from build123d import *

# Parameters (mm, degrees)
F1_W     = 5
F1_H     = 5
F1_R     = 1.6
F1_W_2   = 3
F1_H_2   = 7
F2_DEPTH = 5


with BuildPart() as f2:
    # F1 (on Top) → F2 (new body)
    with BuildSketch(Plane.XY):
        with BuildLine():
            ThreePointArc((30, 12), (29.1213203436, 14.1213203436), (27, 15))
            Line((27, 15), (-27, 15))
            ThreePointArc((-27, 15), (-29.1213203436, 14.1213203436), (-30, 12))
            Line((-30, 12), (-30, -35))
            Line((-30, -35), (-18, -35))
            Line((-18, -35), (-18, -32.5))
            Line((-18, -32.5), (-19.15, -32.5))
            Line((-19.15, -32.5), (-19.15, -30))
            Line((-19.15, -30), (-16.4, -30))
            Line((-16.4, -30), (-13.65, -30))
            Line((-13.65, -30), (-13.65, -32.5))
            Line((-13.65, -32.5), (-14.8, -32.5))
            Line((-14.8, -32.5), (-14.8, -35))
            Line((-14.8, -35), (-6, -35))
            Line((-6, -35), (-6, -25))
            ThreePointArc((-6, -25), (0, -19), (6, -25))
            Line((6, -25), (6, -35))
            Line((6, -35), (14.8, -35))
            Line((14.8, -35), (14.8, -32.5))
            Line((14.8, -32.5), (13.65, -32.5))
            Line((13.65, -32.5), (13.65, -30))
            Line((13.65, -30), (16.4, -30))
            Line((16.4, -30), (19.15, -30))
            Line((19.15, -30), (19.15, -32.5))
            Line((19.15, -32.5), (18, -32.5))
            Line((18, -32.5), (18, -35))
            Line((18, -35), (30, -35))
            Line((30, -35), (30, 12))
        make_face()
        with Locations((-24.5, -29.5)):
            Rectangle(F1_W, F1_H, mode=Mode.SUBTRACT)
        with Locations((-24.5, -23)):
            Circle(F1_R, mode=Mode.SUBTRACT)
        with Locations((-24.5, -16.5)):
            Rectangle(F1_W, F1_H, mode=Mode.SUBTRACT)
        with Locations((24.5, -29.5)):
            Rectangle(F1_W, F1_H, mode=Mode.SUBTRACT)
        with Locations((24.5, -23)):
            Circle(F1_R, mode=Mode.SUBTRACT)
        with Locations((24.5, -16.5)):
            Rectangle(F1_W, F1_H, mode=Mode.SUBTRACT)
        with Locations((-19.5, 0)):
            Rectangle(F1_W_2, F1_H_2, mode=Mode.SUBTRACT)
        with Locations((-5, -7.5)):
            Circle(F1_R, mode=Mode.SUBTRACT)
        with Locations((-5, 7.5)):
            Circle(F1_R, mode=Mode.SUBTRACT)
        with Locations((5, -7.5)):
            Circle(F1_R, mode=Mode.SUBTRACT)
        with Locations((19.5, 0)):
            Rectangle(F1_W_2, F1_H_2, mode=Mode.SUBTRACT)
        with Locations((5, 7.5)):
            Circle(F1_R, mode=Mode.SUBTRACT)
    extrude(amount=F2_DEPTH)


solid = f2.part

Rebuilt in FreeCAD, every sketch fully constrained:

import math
import FreeCAD as App
import Part
import Sketcher

V = App.Vector
Q = App.Units.Quantity

doc = App.newDocument("Part")
params = doc.addObject("Spreadsheet::Sheet", "Params")
for row, (alias, value) in enumerate([
    ("sketch1_radius", "3 mm"),
    ("sketch1_radius2", "6 mm"),
    ("sketch1_diameter", "3.2 mm"),
    ("sketch1_width", "54 mm"),
    ("sketch1_width2", "12 mm"),
    ("pad1_length", "5 mm"),
], start=1):
    params.set(f"A{row}", alias)
    params.set(f"B{row}", "=" + value)
    params.setAlias(f"B{row}", alias)

body = doc.addObject("PartDesign::Body", "Body")

# Sketch on XY plane
sketch1 = body.newObject("Sketcher::SketchObject", "Sketch")
sketch1.AttachmentSupport = (doc.getObject("XY_Plane"), [""])
sketch1.MapMode = "FlatFace"
sketch1.addGeometry(Part.ArcOfCircle(Part.Circle(V(27, 12, 0), V(0, 0, 1), 3), math.radians(0), math.radians(90)), False)
sketch1.addGeometry(Part.LineSegment(V(27, 15, 0), V(-27, 15, 0)), False)
sketch1.addGeometry(Part.ArcOfCircle(Part.Circle(V(-27, 12, 0), V(0, 0, 1), 3), math.radians(90), math.radians(180)), False)
sketch1.addGeometry(Part.LineSegment(V(-30, 12, 0), V(-30, -35, 0)), False)
sketch1.addGeometry(Part.LineSegment(V(-30, -35, 0), V(-18, -35, 0)), False)
sketch1.addGeometry(Part.LineSegment(V(-18, -35, 0), V(-18, -32.5, 0)), False)
sketch1.addGeometry(Part.LineSegment(V(-18, -32.5, 0), V(-19.1, -32.5, 0)), False)
sketch1.addGeometry(Part.LineSegment(V(-19.1, -32.5, 0), V(-19.1, -30, 0)), False)
sketch1.addGeometry(Part.LineSegment(V(-19.1, -30, 0), V(-13.7, -30, 0)), False)
sketch1.addGeometry(Part.LineSegment(V(-13.7, -30, 0), V(-13.7, -32.5, 0)), False)
sketch1.addGeometry(Part.LineSegment(V(-13.7, -32.5, 0), V(-14.8, -32.5, 0)), False)
sketch1.addGeometry(Part.LineSegment(V(-14.8, -32.5, 0), V(-14.8, -35, 0)), False)
sketch1.addGeometry(Part.LineSegment(V(-14.8, -35, 0), V(-6, -35, 0)), False)
sketch1.addGeometry(Part.LineSegment(V(-6, -35, 0), V(-6, -25, 0)), False)
sketch1.addGeometry(Part.ArcOfCircle(Part.Circle(V(0, -25, 0), V(0, 0, 1), 6), math.radians(0), math.radians(180)), False)
sketch1.addGeometry(Part.LineSegment(V(6, -25, 0), V(6, -35, 0)), False)
sketch1.addGeometry(Part.LineSegment(V(6, -35, 0), V(14.8, -35, 0)), False)
sketch1.addGeometry(Part.LineSegment(V(14.8, -35, 0), V(14.8, -32.5, 0)), False)
sketch1.addGeometry(Part.LineSegment(V(14.8, -32.5, 0), V(13.7, -32.5, 0)), False)
sketch1.addGeometry(Part.LineSegment(V(13.7, -32.5, 0), V(13.7, -30, 0)), False)
sketch1.addGeometry(Part.LineSegment(V(13.7, -30, 0), V(19.1, -30, 0)), False)
sketch1.addGeometry(Part.LineSegment(V(19.1, -30, 0), V(19.1, -32.5, 0)), False)
sketch1.addGeometry(Part.LineSegment(V(19.1, -32.5, 0), V(18, -32.5, 0)), False)
sketch1.addGeometry(Part.LineSegment(V(18, -32.5, 0), V(18, -35, 0)), False)
sketch1.addGeometry(Part.LineSegment(V(18, -35, 0), V(30, -35, 0)), False)
sketch1.addGeometry(Part.LineSegment(V(30, -35, 0), V(30, 12, 0)), False)
sketch1.addGeometry(Part.LineSegment(V(-22, -32, 0), V(-27, -32, 0)), False)
sketch1.addGeometry(Part.LineSegment(V(-27, -32, 0), V(-27, -27, 0)), False)
sketch1.addGeometry(Part.LineSegment(V(-27, -27, 0), V(-22, -27, 0)), False)
sketch1.addGeometry(Part.LineSegment(V(-22, -27, 0), V(-22, -32, 0)), False)
sketch1.addGeometry(Part.Circle(V(-24.5, -23, 0), V(0, 0, 1), 1.6), False)
sketch1.addGeometry(Part.LineSegment(V(-22, -19, 0), V(-27, -19, 0)), False)
sketch1.addGeometry(Part.LineSegment(V(-27, -19, 0), V(-27, -14, 0)), False)
sketch1.addGeometry(Part.LineSegment(V(-27, -14, 0), V(-22, -14, 0)), False)
sketch1.addGeometry(Part.LineSegment(V(-22, -14, 0), V(-22, -19, 0)), False)
sketch1.addGeometry(Part.LineSegment(V(27, -32, 0), V(22, -32, 0)), False)
sketch1.addGeometry(Part.LineSegment(V(22, -32, 0), V(22, -27, 0)), False)
sketch1.addGeometry(Part.LineSegment(V(22, -27, 0), V(27, -27, 0)), False)
sketch1.addGeometry(Part.LineSegment(V(27, -27, 0), V(27, -32, 0)), False)
sketch1.addGeometry(Part.Circle(V(24.5, -23, 0), V(0, 0, 1), 1.6), False)
sketch1.addGeometry(Part.LineSegment(V(27, -19, 0), V(22, -19, 0)), False)
sketch1.addGeometry(Part.LineSegment(V(22, -19, 0), V(22, -14, 0)), False)
sketch1.addGeometry(Part.LineSegment(V(22, -14, 0), V(27, -14, 0)), False)
sketch1.addGeometry(Part.LineSegment(V(27, -14, 0), V(27, -19, 0)), False)
sketch1.addGeometry(Part.Circle(V(-5, -7.5, 0), V(0, 0, 1), 1.6), False)
sketch1.addGeometry(Part.LineSegment(V(-18, -3.5, 0), V(-21, -3.5, 0)), False)
sketch1.addGeometry(Part.LineSegment(V(-21, -3.5, 0), V(-21, 3.5, 0)), False)
sketch1.addGeometry(Part.LineSegment(V(-21, 3.5, 0), V(-18, 3.5, 0)), False)
sketch1.addGeometry(Part.LineSegment(V(-18, 3.5, 0), V(-18, -3.5, 0)), False)
sketch1.addGeometry(Part.Circle(V(-5, 7.5, 0), V(0, 0, 1), 1.6), False)
sketch1.addGeometry(Part.Circle(V(5, -7.5, 0), V(0, 0, 1), 1.6), False)
sketch1.addGeometry(Part.Circle(V(5, 7.5, 0), V(0, 0, 1), 1.6), False)
sketch1.addGeometry(Part.LineSegment(V(21, -3.5, 0), V(18, -3.5, 0)), False)
sketch1.addGeometry(Part.LineSegment(V(18, -3.5, 0), V(18, 3.5, 0)), False)
sketch1.addGeometry(Part.LineSegment(V(18, 3.5, 0), V(21, 3.5, 0)), False)
sketch1.addGeometry(Part.LineSegment(V(21, 3.5, 0), V(21, -3.5, 0)), False)
sketch1.addConstraint(Sketcher.Constraint("Tangent", 0, 2, 1, 1))
sketch1.addConstraint(Sketcher.Constraint("Tangent", 1, 2, 2, 1))
sketch1.addConstraint(Sketcher.Constraint("Tangent", 2, 2, 3, 1))
sketch1.addConstraint(Sketcher.Constraint("Coincident", 3, 2, 4, 1))
sketch1.addConstraint(Sketcher.Constraint("Coincident", 4, 2, 5, 1))
sketch1.addConstraint(Sketcher.Constraint("Coincident", 5, 2, 6, 1))
sketch1.addConstraint(Sketcher.Constraint("Coincident", 6, 2, 7, 1))
sketch1.addConstraint(Sketcher.Constraint("Coincident", 7, 2, 8, 1))
sketch1.addConstraint(Sketcher.Constraint("Coincident", 8, 2, 9, 1))
sketch1.addConstraint(Sketcher.Constraint("Coincident", 9, 2, 10, 1))
sketch1.addConstraint(Sketcher.Constraint("Coincident", 10, 2, 11, 1))
sketch1.addConstraint(Sketcher.Constraint("Coincident", 11, 2, 12, 1))
sketch1.addConstraint(Sketcher.Constraint("Coincident", 12, 2, 13, 1))
sketch1.addConstraint(Sketcher.Constraint("Tangent", 13, 2, 14, 2))
sketch1.addConstraint(Sketcher.Constraint("Tangent", 14, 1, 15, 1))
sketch1.addConstraint(Sketcher.Constraint("Coincident", 15, 2, 16, 1))
sketch1.addConstraint(Sketcher.Constraint("Coincident", 16, 2, 17, 1))
sketch1.addConstraint(Sketcher.Constraint("Coincident", 17, 2, 18, 1))
sketch1.addConstraint(Sketcher.Constraint("Coincident", 18, 2, 19, 1))
sketch1.addConstraint(Sketcher.Constraint("Coincident", 19, 2, 20, 1))
sketch1.addConstraint(Sketcher.Constraint("Coincident", 20, 2, 21, 1))
sketch1.addConstraint(Sketcher.Constraint("Coincident", 21, 2, 22, 1))
sketch1.addConstraint(Sketcher.Constraint("Coincident", 22, 2, 23, 1))
sketch1.addConstraint(Sketcher.Constraint("Coincident", 23, 2, 24, 1))
sketch1.addConstraint(Sketcher.Constraint("Coincident", 24, 2, 25, 1))
sketch1.addConstraint(Sketcher.Constraint("Tangent", 25, 2, 0, 1))
sketch1.addConstraint(Sketcher.Constraint("Coincident", 26, 2, 27, 1))
sketch1.addConstraint(Sketcher.Constraint("Coincident", 27, 2, 28, 1))
sketch1.addConstraint(Sketcher.Constraint("Coincident", 28, 2, 29, 1))
sketch1.addConstraint(Sketcher.Constraint("Coincident", 29, 2, 26, 1))
sketch1.addConstraint(Sketcher.Constraint("Coincident", 31, 2, 32, 1))
sketch1.addConstraint(Sketcher.Constraint("Coincident", 32, 2, 33, 1))
sketch1.addConstraint(Sketcher.Constraint("Coincident", 33, 2, 34, 1))
sketch1.addConstraint(Sketcher.Constraint("Coincident", 34, 2, 31, 1))
sketch1.addConstraint(Sketcher.Constraint("Coincident", 35, 2, 36, 1))
sketch1.addConstraint(Sketcher.Constraint("Coincident", 36, 2, 37, 1))
sketch1.addConstraint(Sketcher.Constraint("Coincident", 37, 2, 38, 1))
sketch1.addConstraint(Sketcher.Constraint("Coincident", 38, 2, 35, 1))
sketch1.addConstraint(Sketcher.Constraint("Coincident", 40, 2, 41, 1))
sketch1.addConstraint(Sketcher.Constraint("Coincident", 41, 2, 42, 1))
sketch1.addConstraint(Sketcher.Constraint("Coincident", 42, 2, 43, 1))
sketch1.addConstraint(Sketcher.Constraint("Coincident", 43, 2, 40, 1))
sketch1.addConstraint(Sketcher.Constraint("Coincident", 45, 2, 46, 1))
sketch1.addConstraint(Sketcher.Constraint("Coincident", 46, 2, 47, 1))
sketch1.addConstraint(Sketcher.Constraint("Coincident", 47, 2, 48, 1))
sketch1.addConstraint(Sketcher.Constraint("Coincident", 48, 2, 45, 1))
sketch1.addConstraint(Sketcher.Constraint("Coincident", 52, 2, 53, 1))
sketch1.addConstraint(Sketcher.Constraint("Coincident", 53, 2, 54, 1))
sketch1.addConstraint(Sketcher.Constraint("Coincident", 54, 2, 55, 1))
sketch1.addConstraint(Sketcher.Constraint("Coincident", 55, 2, 52, 1))
sketch1.addConstraint(Sketcher.Constraint("Horizontal", 1))
sketch1.addConstraint(Sketcher.Constraint("Vertical", 3))
sketch1.addConstraint(Sketcher.Constraint("Horizontal", 4))
sketch1.addConstraint(Sketcher.Constraint("Vertical", 5))
sketch1.addConstraint(Sketcher.Constraint("Horizontal", 6))
sketch1.addConstraint(Sketcher.Constraint("Vertical", 7))
sketch1.addConstraint(Sketcher.Constraint("Horizontal", 8))
sketch1.addConstraint(Sketcher.Constraint("Vertical", 9))
sketch1.addConstraint(Sketcher.Constraint("Horizontal", 10))
sketch1.addConstraint(Sketcher.Constraint("Vertical", 11))
sketch1.addConstraint(Sketcher.Constraint("Horizontal", 12))
sketch1.addConstraint(Sketcher.Constraint("Vertical", 13))
sketch1.addConstraint(Sketcher.Constraint("Vertical", 15))
sketch1.addConstraint(Sketcher.Constraint("Horizontal", 16))
sketch1.addConstraint(Sketcher.Constraint("Vertical", 17))
sketch1.addConstraint(Sketcher.Constraint("Horizontal", 18))
sketch1.addConstraint(Sketcher.Constraint("Vertical", 19))
sketch1.addConstraint(Sketcher.Constraint("Horizontal", 20))
sketch1.addConstraint(Sketcher.Constraint("Vertical", 21))
sketch1.addConstraint(Sketcher.Constraint("Horizontal", 22))
sketch1.addConstraint(Sketcher.Constraint("Vertical", 23))
sketch1.addConstraint(Sketcher.Constraint("Horizontal", 24))
sketch1.addConstraint(Sketcher.Constraint("Vertical", 25))
sketch1.addConstraint(Sketcher.Constraint("Horizontal", 26))
sketch1.addConstraint(Sketcher.Constraint("Vertical", 27))
sketch1.addConstraint(Sketcher.Constraint("Horizontal", 28))
sketch1.addConstraint(Sketcher.Constraint("Vertical", 29))
sketch1.addConstraint(Sketcher.Constraint("Horizontal", 31))
sketch1.addConstraint(Sketcher.Constraint("Vertical", 32))
sketch1.addConstraint(Sketcher.Constraint("Horizontal", 33))
sketch1.addConstraint(Sketcher.Constraint("Vertical", 34))
sketch1.addConstraint(Sketcher.Constraint("Horizontal", 35))
sketch1.addConstraint(Sketcher.Constraint("Vertical", 36))
sketch1.addConstraint(Sketcher.Constraint("Horizontal", 37))
sketch1.addConstraint(Sketcher.Constraint("Vertical", 38))
sketch1.addConstraint(Sketcher.Constraint("Horizontal", 40))
sketch1.addConstraint(Sketcher.Constraint("Vertical", 41))
sketch1.addConstraint(Sketcher.Constraint("Horizontal", 42))
sketch1.addConstraint(Sketcher.Constraint("Vertical", 43))
sketch1.addConstraint(Sketcher.Constraint("Horizontal", 45))
sketch1.addConstraint(Sketcher.Constraint("Vertical", 46))
sketch1.addConstraint(Sketcher.Constraint("Horizontal", 47))
sketch1.addConstraint(Sketcher.Constraint("Vertical", 48))
sketch1.addConstraint(Sketcher.Constraint("Horizontal", 52))
sketch1.addConstraint(Sketcher.Constraint("Vertical", 53))
sketch1.addConstraint(Sketcher.Constraint("Horizontal", 54))
sketch1.addConstraint(Sketcher.Constraint("Vertical", 55))
sketch1.addConstraint(Sketcher.Constraint("Equal", 0, 2))
sketch1.addConstraint(Sketcher.Constraint("Equal", 30, 39))
sketch1.addConstraint(Sketcher.Constraint("Equal", 39, 44))
sketch1.addConstraint(Sketcher.Constraint("Equal", 44, 49))
sketch1.addConstraint(Sketcher.Constraint("Equal", 49, 50))
sketch1.addConstraint(Sketcher.Constraint("Equal", 50, 51))
sketch1.addConstraint(Sketcher.Constraint("Symmetric", 49, 3, 50, 3, -1, 1))
sketch1.addConstraint(Sketcher.Constraint("Symmetric", 44, 3, 51, 3, -1, 1))
sketch1.addConstraint(Sketcher.Constraint("Symmetric", 47, 2, 52, 2, -1, 1))
sketch1.addConstraint(Sketcher.Constraint("Symmetric", 45, 2, 54, 2, -1, 1))
sketch1.addConstraint(Sketcher.Constraint("Symmetric", 30, 3, 39, 3, -2))
sketch1.addConstraint(Sketcher.Constraint("Symmetric", 44, 3, 50, 3, -2))
sketch1.addConstraint(Sketcher.Constraint("Symmetric", 12, 2, 15, 2, -2))
sketch1.addConstraint(Sketcher.Constraint("Symmetric", 10, 2, 17, 2, -2))
sketch1.addConstraint(Sketcher.Constraint("Symmetric", 8, 2, 19, 2, -2))
sketch1.addConstraint(Sketcher.Constraint("Symmetric", 6, 2, 21, 2, -2))
sketch1.addConstraint(Sketcher.Constraint("Symmetric", 4, 2, 23, 2, -2))
sketch1.addConstraint(Sketcher.Constraint("Symmetric", 29, 2, 35, 2, -2))
sketch1.addConstraint(Sketcher.Constraint("Symmetric", 27, 2, 37, 2, -2))
sketch1.addConstraint(Sketcher.Constraint("Symmetric", 34, 2, 40, 2, -2))
sketch1.addConstraint(Sketcher.Constraint("Symmetric", 32, 2, 42, 2, -2))
sketch1.addConstraint(Sketcher.Constraint("Horizontal", 6, 2, 9, 2))
sketch1.addConstraint(Sketcher.Constraint("Horizontal", 4, 2, 11, 2))
sketch1.addConstraint(Sketcher.Constraint("Horizontal", 48, 2, 52, 2))
sketch1.addConstraint(Sketcher.Constraint("Vertical", 1, 2, 26, 2))
sketch1.addConstraint(Sketcher.Constraint("Vertical", 27, 2, 31, 2))
sketch1.addConstraint(Sketcher.Constraint("Vertical", 29, 2, 33, 2))
sketch1.addConstraint(Sketcher.Constraint("Vertical", 0, 2, 37, 2))
sketch1.addConstraint(Sketcher.Constraint("Vertical", 5, 2, 47, 2))
sketch1.addConstraint(Sketcher.Constraint("Equal", 6, 10))
sketch1.addConstraint(Sketcher.Constraint("Equal", 5, 7))
sketch1.addConstraint(Sketcher.Constraint("Equal", 42, 27))
sketch1.addConstraint(Sketcher.Constraint("Equal", 29, 32))
sketch1.addConstraint(Sketcher.Constraint("Radius", 0, Q("3 mm")))
sketch1.addConstraint(Sketcher.Constraint("Radius", 14, Q("6 mm")))
sketch1.addConstraint(Sketcher.Constraint("Diameter", 30, Q("3.2 mm")))
sketch1.addConstraint(Sketcher.Constraint("DistanceX", 1, 2, 1, 1, Q("54 mm")))
sketch1.addConstraint(Sketcher.Constraint("DistanceX", 4, 1, 4, 2, Q("12 mm")))
sketch1.addConstraint(Sketcher.Constraint("DistanceX", 26, 2, 26, 1, Q("5 mm")))
sketch1.addConstraint(Sketcher.Constraint("DistanceX", 45, 2, 45, 1, Q("3 mm")))
sketch1.addConstraint(Sketcher.Constraint("DistanceY", 3, 2, 3, 1, Q("47 mm")))
sketch1.addConstraint(Sketcher.Constraint("DistanceY", 13, 1, 13, 2, Q("10 mm")))
sketch1.addConstraint(Sketcher.Constraint("DistanceY", 46, 1, 46, 2, Q("7 mm")))
sketch1.addConstraint(Sketcher.Constraint("DistanceX", 8, 1, 8, 2, Q("5.5 mm")))
sketch1.addConstraint(Sketcher.Constraint("DistanceX", 12, 1, 12, 2, Q("8.8 mm")))
sketch1.addConstraint(Sketcher.Constraint("DistanceY", 5, 1, 5, 2, Q("2.5 mm")))
sketch1.addConstraint(Sketcher.Constraint("DistanceY", -1, 1, 0, 3, Q("12 mm")))
sketch1.addConstraint(Sketcher.Constraint("DistanceY", 30, 3, -1, 1, Q("23 mm")))
sketch1.addConstraint(Sketcher.Constraint("DistanceX", 44, 3, -1, 1, Q("5 mm")))
sketch1.addConstraint(Sketcher.Constraint("DistanceY", 26, 2, -1, 1, Q("32 mm")))
sketch1.addConstraint(Sketcher.Constraint("DistanceY", 31, 2, -1, 1, Q("19 mm")))
sketch1.addConstraint(Sketcher.Constraint("DistanceX", 30, 3, 39, 3, Q("49 mm")))
sketch1.addConstraint(Sketcher.Constraint("DistanceY", 44, 3, 49, 3, Q("15 mm")))
sketch1.setExpression("Constraints[130]", "Params.sketch1_radius")
sketch1.setExpression("Constraints[131]", "Params.sketch1_radius2")
sketch1.setExpression("Constraints[132]", "Params.sketch1_diameter")
sketch1.setExpression("Constraints[133]", "Params.sketch1_width")
sketch1.setExpression("Constraints[134]", "Params.sketch1_width2")
pad1 = body.newObject("PartDesign::Pad", "Pad")
pad1.Profile = sketch1
pad1.setExpression("Length", "Params.pad1_length")

doc.recompute()
